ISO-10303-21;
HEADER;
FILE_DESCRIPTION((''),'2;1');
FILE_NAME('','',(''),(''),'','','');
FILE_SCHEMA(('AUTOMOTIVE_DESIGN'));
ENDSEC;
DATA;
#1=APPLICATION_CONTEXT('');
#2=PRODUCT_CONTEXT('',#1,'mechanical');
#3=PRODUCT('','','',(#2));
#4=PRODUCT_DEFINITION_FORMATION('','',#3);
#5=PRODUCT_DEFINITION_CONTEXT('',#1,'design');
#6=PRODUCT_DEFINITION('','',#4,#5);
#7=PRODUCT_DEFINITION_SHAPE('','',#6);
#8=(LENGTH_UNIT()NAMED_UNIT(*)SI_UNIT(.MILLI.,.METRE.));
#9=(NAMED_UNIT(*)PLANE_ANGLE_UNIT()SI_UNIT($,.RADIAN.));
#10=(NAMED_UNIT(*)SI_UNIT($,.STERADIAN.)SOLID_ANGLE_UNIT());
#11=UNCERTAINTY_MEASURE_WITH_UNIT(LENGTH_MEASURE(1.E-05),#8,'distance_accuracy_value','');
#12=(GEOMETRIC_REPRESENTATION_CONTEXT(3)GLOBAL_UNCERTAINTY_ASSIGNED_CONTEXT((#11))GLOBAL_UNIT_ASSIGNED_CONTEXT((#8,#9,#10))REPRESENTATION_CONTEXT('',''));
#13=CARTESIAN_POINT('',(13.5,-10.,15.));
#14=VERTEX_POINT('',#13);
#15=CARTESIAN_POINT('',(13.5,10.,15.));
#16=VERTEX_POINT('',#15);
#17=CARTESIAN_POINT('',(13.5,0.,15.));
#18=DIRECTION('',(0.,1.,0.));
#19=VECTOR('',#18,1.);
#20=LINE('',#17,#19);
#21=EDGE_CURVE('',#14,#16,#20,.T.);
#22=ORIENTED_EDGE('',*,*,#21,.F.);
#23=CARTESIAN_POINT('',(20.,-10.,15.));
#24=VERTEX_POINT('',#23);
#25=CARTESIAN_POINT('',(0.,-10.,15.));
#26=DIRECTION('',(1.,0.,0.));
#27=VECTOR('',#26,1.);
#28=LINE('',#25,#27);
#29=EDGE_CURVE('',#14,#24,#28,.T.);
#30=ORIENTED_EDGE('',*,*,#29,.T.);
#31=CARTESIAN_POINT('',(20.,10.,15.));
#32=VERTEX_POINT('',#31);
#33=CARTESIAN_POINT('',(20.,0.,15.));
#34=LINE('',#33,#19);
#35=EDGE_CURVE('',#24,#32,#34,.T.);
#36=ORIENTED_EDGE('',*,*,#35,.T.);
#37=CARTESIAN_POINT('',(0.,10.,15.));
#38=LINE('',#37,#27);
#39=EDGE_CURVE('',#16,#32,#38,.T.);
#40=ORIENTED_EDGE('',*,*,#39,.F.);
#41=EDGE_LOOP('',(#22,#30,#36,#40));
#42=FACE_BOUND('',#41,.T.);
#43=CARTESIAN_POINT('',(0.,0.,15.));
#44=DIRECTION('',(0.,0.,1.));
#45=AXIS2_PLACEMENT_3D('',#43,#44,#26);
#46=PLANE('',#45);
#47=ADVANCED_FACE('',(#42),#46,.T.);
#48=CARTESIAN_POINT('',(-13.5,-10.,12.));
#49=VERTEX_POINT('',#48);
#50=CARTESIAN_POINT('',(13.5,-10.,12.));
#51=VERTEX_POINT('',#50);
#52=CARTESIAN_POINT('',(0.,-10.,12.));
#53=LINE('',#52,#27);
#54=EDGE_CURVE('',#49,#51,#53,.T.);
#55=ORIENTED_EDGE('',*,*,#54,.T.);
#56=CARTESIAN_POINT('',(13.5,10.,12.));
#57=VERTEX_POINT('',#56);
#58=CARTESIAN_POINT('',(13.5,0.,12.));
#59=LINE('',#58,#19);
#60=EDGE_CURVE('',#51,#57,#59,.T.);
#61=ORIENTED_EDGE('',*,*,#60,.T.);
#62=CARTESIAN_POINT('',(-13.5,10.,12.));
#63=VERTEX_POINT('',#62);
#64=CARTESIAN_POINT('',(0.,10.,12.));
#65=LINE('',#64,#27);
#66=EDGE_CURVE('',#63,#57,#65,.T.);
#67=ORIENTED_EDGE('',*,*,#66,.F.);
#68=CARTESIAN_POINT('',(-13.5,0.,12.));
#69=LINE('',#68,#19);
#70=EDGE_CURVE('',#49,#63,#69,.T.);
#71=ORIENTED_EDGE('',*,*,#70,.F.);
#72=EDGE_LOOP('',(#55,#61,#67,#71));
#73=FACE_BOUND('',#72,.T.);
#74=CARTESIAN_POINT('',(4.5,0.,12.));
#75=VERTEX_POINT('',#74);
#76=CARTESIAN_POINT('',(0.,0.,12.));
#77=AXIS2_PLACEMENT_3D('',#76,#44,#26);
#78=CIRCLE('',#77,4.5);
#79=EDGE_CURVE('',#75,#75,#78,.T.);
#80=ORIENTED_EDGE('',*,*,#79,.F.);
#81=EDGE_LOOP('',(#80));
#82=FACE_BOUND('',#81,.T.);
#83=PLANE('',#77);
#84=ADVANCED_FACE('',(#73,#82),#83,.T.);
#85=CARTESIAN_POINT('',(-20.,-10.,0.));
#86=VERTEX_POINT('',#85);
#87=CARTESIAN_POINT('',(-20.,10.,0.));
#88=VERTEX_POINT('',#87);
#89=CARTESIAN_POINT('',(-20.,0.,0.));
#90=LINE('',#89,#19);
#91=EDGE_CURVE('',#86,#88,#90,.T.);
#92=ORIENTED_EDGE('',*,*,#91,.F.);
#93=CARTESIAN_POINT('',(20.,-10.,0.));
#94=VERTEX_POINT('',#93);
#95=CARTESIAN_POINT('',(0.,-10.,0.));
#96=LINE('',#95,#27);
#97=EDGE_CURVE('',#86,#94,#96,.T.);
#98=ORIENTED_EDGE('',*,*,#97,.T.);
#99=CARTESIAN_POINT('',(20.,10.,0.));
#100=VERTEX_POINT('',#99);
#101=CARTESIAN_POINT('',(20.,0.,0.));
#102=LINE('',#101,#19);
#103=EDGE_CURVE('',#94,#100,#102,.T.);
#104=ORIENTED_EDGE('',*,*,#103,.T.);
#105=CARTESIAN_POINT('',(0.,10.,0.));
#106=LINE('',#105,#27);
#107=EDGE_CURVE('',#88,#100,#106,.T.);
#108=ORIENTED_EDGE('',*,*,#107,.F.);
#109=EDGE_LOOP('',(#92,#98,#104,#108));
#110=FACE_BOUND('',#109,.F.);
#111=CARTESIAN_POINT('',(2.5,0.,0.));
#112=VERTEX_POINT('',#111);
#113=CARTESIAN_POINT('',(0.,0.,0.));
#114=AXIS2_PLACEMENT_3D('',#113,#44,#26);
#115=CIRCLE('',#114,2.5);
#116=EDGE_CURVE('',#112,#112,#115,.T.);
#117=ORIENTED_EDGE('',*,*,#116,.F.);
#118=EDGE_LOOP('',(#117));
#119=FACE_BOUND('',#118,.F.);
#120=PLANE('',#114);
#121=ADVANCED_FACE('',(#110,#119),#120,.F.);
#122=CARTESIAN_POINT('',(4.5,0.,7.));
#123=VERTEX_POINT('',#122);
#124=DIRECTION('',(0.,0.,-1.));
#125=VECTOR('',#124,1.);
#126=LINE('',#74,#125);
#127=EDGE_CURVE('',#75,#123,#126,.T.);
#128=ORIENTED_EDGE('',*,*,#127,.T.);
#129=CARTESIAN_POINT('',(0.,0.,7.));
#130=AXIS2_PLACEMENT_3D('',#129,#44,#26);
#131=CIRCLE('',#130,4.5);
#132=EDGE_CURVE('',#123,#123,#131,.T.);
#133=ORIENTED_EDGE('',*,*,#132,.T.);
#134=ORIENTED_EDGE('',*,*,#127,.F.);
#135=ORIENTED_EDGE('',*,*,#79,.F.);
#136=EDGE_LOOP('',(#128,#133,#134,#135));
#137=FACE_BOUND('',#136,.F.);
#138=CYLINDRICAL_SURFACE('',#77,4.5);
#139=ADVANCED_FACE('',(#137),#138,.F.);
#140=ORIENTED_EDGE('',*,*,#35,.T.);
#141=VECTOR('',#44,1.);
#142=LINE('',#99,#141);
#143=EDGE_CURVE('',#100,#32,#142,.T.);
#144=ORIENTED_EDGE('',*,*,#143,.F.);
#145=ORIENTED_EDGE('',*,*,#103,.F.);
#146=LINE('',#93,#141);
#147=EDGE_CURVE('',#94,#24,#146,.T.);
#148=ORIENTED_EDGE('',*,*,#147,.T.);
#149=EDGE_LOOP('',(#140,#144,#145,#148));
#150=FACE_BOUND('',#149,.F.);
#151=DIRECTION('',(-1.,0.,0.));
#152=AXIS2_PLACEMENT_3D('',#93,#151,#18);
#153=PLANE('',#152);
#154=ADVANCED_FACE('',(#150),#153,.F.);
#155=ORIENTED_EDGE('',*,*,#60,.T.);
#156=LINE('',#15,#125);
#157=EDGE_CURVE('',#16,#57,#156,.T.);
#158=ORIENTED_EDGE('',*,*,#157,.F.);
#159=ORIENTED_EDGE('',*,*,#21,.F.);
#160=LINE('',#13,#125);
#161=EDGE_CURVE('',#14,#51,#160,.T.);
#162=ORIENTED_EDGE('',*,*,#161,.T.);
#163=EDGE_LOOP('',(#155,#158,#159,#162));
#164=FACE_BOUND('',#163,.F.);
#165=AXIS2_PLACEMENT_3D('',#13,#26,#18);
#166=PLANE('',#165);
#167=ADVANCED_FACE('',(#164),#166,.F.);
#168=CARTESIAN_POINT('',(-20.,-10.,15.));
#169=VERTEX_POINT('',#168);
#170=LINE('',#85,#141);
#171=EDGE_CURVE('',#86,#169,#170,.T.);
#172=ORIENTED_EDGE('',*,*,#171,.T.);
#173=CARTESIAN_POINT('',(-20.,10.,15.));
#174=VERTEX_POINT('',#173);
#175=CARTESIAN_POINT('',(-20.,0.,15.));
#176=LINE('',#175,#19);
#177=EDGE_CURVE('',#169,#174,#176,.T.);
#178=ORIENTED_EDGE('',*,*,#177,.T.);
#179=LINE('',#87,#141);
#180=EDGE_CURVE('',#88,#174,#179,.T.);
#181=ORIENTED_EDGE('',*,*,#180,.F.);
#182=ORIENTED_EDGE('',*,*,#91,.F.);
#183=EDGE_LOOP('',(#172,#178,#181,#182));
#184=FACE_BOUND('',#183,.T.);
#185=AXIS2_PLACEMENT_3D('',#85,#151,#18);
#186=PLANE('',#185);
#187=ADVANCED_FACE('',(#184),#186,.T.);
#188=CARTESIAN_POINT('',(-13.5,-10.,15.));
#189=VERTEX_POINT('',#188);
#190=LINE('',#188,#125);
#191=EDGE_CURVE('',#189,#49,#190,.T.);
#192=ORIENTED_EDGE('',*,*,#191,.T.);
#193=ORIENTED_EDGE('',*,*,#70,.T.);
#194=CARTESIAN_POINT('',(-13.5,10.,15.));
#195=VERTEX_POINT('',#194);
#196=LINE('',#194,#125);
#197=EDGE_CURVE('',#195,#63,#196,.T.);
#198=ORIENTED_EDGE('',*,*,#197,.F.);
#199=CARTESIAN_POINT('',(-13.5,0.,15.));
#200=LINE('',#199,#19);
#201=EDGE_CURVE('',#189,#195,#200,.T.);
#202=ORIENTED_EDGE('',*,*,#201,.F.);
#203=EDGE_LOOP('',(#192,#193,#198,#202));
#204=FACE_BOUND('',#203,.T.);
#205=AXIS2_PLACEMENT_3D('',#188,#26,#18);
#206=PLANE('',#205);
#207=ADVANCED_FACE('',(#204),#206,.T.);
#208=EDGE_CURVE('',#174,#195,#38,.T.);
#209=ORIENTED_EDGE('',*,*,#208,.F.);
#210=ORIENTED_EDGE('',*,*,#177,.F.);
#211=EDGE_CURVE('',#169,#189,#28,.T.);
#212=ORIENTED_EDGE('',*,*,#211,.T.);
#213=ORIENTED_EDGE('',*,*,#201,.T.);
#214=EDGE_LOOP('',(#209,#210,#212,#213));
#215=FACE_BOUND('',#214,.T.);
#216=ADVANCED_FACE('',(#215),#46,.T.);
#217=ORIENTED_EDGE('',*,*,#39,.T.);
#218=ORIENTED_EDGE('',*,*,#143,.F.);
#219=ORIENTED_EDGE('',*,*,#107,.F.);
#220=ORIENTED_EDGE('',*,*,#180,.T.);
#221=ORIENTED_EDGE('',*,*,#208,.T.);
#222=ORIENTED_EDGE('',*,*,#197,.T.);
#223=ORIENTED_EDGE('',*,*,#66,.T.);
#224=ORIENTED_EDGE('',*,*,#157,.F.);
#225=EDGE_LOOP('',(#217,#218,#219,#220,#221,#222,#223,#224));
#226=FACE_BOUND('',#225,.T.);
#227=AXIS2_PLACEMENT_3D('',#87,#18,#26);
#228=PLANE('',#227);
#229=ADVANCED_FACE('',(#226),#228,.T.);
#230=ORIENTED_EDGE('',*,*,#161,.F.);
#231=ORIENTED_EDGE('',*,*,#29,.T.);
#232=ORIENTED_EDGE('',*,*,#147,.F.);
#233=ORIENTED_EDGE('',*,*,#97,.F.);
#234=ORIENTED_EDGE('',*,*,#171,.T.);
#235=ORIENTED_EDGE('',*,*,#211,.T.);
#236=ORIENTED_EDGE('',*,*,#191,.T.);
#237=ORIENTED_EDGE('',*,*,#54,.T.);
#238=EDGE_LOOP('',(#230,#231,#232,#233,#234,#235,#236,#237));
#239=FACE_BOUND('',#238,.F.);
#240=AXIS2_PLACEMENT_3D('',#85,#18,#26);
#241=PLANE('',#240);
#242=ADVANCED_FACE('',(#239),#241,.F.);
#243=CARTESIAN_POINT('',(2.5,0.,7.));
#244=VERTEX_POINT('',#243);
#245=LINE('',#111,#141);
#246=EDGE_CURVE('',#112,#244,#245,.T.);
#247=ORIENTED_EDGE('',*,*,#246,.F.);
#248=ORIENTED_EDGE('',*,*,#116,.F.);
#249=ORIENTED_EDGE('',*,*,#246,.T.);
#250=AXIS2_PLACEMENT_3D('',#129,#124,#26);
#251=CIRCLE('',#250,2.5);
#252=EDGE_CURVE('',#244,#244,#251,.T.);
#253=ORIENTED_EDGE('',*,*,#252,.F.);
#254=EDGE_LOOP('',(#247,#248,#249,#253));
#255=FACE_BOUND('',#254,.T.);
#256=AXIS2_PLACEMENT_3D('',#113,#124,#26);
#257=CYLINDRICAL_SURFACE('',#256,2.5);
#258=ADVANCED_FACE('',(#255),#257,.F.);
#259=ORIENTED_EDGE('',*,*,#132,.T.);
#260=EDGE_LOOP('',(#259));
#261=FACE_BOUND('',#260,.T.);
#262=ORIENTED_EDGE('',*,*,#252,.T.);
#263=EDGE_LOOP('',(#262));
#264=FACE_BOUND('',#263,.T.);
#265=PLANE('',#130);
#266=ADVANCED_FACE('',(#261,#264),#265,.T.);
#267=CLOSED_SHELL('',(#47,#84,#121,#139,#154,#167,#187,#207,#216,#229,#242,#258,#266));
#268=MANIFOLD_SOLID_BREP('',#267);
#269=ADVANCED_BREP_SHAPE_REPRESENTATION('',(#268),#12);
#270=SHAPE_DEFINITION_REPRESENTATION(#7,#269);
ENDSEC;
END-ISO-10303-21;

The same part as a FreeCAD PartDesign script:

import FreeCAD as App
import Part
import Sketcher
from FreeCAD import Vector
Q = App.Units.Quantity

doc = App.newDocument("Part")
body = doc.addObject("PartDesign::Body", "Body")

sketch1 = body.newObject("Sketcher::SketchObject", "Sketch")
sketch1.AttachmentSupport = (doc.getObject("XY_Plane"), [""])
sketch1.MapMode = "FlatFace"
sketch1.addGeometry(Part.LineSegment(Vector(-20, 10, 0), Vector(-20, -10, 0)), False)
sketch1.addGeometry(Part.LineSegment(Vector(-20, -10, 0), Vector(20, -10, 0)), False)
sketch1.addGeometry(Part.LineSegment(Vector(20, -10, 0), Vector(20, 10, 0)), False)
sketch1.addGeometry(Part.LineSegment(Vector(20, 10, 0), Vector(-20, 10, 0)), False)
sketch1.addGeometry(Part.Circle(Vector(0, 0, 0), Vector(0, 0, 1), 2.5), False)
sketch1.addConstraint(Sketcher.Constraint("Coincident", 0, 2, 1, 1))
sketch1.addConstraint(Sketcher.Constraint("Coincident", 1, 2, 2, 1))
sketch1.addConstraint(Sketcher.Constraint("Coincident", 2, 2, 3, 1))
sketch1.addConstraint(Sketcher.Constraint("Coincident", 3, 2, 0, 1))
sketch1.addConstraint(Sketcher.Constraint("Vertical", 0))
sketch1.addConstraint(Sketcher.Constraint("Horizontal", 1))
sketch1.addConstraint(Sketcher.Constraint("Vertical", 2))
sketch1.addConstraint(Sketcher.Constraint("Horizontal", 3))
sketch1.addConstraint(Sketcher.Constraint("Coincident", 4, 3, -1, 1))
sketch1.addConstraint(Sketcher.Constraint("Symmetric", 0, 2, 2, 2, -1, 1))
sketch1.addConstraint(Sketcher.Constraint("Diameter", 4, Q("5 mm")))
sketch1.addConstraint(Sketcher.Constraint("DistanceX", 1, 1, 1, 2, Q("40 mm")))
sketch1.addConstraint(Sketcher.Constraint("DistanceY", 0, 2, 0, 1, Q("20 mm")))
pad1 = body.newObject("PartDesign::Pad", "Pad")
pad1.Profile = sketch1
pad1.Length = 15

sketch2 = body.newObject("Sketcher::SketchObject", "Sketch001")
sketch2.AttachmentSupport = (doc.getObject("XY_Plane"), [""])
sketch2.MapMode = "FlatFace"
sketch2.AttachmentOffset = App.Placement(Vector(0, 0, 15), App.Rotation())
sketch2.addGeometry(Part.LineSegment(Vector(-13.5, 10, 0), Vector(-13.5, -10, 0)), False)
sketch2.addGeometry(Part.LineSegment(Vector(-13.5, -10, 0), Vector(13.5, -10, 0)), False)
sketch2.addGeometry(Part.LineSegment(Vector(13.5, -10, 0), Vector(13.5, 10, 0)), False)
sketch2.addGeometry(Part.LineSegment(Vector(13.5, 10, 0), Vector(-13.5, 10, 0)), False)
sketch2.addGeometry(Part.Circle(Vector(0, 0, 0), Vector(0, 0, 1), 2.5), False)
sketch2.addConstraint(Sketcher.Constraint("Coincident", 0, 2, 1, 1))
sketch2.addConstraint(Sketcher.Constraint("Coincident", 1, 2, 2, 1))
sketch2.addConstraint(Sketcher.Constraint("Coincident", 2, 2, 3, 1))
sketch2.addConstraint(Sketcher.Constraint("Coincident", 3, 2, 0, 1))
sketch2.addConstraint(Sketcher.Constraint("Vertical", 0))
sketch2.addConstraint(Sketcher.Constraint("Horizontal", 1))
sketch2.addConstraint(Sketcher.Constraint("Vertical", 2))
sketch2.addConstraint(Sketcher.Constraint("Horizontal", 3))
sketch2.addConstraint(Sketcher.Constraint("Coincident", 4, 3, -1, 1))
sketch2.addConstraint(Sketcher.Constraint("Symmetric", 0, 2, 2, 2, -1, 1))
sketch2.addConstraint(Sketcher.Constraint("Diameter", 4, Q("5 mm")))
sketch2.addConstraint(Sketcher.Constraint("DistanceX", 1, 1, 1, 2, Q("27 mm")))
sketch2.addConstraint(Sketcher.Constraint("DistanceY", 0, 2, 0, 1, Q("20 mm")))
pocket1 = body.newObject("PartDesign::Pocket", "Pocket")
pocket1.Profile = sketch2
pocket1.Length = 3

sketch3 = body.newObject("Sketcher::SketchObject", "Sketch002")
sketch3.AttachmentSupport = (doc.getObject("XY_Plane"), [""])
sketch3.MapMode = "FlatFace"
sketch3.AttachmentOffset = App.Placement(Vector(0, 0, 12), App.Rotation())
sketch3.addGeometry(Part.Circle(Vector(0, 0, 0), Vector(0, 0, 1), 4.5), False)
sketch3.addConstraint(Sketcher.Constraint("Coincident", 0, 3, -1, 1))
sketch3.addConstraint(Sketcher.Constraint("Diameter", 0, Q("9 mm")))
pocket2 = body.newObject("PartDesign::Pocket", "Pocket001")
pocket2.Profile = sketch3
pocket2.Length = 5

doc.recompute()
